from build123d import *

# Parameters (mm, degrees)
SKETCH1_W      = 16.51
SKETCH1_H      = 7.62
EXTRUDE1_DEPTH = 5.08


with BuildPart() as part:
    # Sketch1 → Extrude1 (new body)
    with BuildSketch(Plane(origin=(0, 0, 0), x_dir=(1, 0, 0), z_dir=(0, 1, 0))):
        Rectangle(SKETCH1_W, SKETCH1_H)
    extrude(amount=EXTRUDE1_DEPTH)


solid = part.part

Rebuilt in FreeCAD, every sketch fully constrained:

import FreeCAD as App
import Part
import Sketcher
from FreeCAD import Vector
Q = App.Units.Quantity


def add_polygon(sketch, points):
    """Adds a closed chain of lines whose ends are joined by coincident constraints."""
    first, n = sketch.GeometryCount, len(points)
    for a, b in zip(points, points[1:] + points[:1]):
        sketch.addGeometry(Part.LineSegment(App.Vector(*a, 0), App.Vector(*b, 0)), False)
    for i in range(n):
        sketch.addConstraint(Sketcher.Constraint("Coincident", first + i, 2, first + (i + 1) % n, 1))

doc = App.newDocument("Part")
params = doc.addObject("Spreadsheet::Sheet", "Params")
for row, (alias, value) in enumerate([
    ("sketch1_height", "0.3 in"),
    ("sketch1_width", "0.65 in"),
    ("pad1_length", "0.2 in"),
], start=1):
    params.set(f"A{row}", alias)
    params.set(f"B{row}", "=" + value)
    params.setAlias(f"B{row}", alias)

body = doc.addObject("PartDesign::Body", "Body")

# Sketch on XZ plane
sketch1 = doc.addObject("Sketcher::SketchObject", "Sketch")
body.addObject(sketch1)
sketch1.AttachmentSupport = (doc.XZ_Plane, [""])
sketch1.MapMode = "FlatFace"
add_polygon(sketch1, [(-8, -4), (-8, 4), (8, 4), (8, -4)])  # lines 0-3
sketch1.addConstraint([
    Sketcher.Constraint("Vertical", 0),
    Sketcher.Constraint("Horizontal", 1),
    Sketcher.Constraint("Vertical", 2),
    Sketcher.Constraint("Horizontal", 3),
    Sketcher.Constraint("Symmetric", 0, 2, 2, 2, -1, 1),
    Sketcher.Constraint("DistanceY", 0, 1, 0, 2, Q("0.3 in")),
    Sketcher.Constraint("DistanceX", 1, 1, 1, 2, Q("0.65 in")),
])
sketch1.setExpression("Constraints[9]", "Params.sketch1_height")
sketch1.setExpression("Constraints[10]", "Params.sketch1_width")
pad1 = doc.addObject("PartDesign::Pad", "Pad")
body.addObject(pad1)
pad1.Profile = sketch1
pad1.setExpression("Length", "Params.pad1_length")
pad1.Reversed = True

doc.recompute()
